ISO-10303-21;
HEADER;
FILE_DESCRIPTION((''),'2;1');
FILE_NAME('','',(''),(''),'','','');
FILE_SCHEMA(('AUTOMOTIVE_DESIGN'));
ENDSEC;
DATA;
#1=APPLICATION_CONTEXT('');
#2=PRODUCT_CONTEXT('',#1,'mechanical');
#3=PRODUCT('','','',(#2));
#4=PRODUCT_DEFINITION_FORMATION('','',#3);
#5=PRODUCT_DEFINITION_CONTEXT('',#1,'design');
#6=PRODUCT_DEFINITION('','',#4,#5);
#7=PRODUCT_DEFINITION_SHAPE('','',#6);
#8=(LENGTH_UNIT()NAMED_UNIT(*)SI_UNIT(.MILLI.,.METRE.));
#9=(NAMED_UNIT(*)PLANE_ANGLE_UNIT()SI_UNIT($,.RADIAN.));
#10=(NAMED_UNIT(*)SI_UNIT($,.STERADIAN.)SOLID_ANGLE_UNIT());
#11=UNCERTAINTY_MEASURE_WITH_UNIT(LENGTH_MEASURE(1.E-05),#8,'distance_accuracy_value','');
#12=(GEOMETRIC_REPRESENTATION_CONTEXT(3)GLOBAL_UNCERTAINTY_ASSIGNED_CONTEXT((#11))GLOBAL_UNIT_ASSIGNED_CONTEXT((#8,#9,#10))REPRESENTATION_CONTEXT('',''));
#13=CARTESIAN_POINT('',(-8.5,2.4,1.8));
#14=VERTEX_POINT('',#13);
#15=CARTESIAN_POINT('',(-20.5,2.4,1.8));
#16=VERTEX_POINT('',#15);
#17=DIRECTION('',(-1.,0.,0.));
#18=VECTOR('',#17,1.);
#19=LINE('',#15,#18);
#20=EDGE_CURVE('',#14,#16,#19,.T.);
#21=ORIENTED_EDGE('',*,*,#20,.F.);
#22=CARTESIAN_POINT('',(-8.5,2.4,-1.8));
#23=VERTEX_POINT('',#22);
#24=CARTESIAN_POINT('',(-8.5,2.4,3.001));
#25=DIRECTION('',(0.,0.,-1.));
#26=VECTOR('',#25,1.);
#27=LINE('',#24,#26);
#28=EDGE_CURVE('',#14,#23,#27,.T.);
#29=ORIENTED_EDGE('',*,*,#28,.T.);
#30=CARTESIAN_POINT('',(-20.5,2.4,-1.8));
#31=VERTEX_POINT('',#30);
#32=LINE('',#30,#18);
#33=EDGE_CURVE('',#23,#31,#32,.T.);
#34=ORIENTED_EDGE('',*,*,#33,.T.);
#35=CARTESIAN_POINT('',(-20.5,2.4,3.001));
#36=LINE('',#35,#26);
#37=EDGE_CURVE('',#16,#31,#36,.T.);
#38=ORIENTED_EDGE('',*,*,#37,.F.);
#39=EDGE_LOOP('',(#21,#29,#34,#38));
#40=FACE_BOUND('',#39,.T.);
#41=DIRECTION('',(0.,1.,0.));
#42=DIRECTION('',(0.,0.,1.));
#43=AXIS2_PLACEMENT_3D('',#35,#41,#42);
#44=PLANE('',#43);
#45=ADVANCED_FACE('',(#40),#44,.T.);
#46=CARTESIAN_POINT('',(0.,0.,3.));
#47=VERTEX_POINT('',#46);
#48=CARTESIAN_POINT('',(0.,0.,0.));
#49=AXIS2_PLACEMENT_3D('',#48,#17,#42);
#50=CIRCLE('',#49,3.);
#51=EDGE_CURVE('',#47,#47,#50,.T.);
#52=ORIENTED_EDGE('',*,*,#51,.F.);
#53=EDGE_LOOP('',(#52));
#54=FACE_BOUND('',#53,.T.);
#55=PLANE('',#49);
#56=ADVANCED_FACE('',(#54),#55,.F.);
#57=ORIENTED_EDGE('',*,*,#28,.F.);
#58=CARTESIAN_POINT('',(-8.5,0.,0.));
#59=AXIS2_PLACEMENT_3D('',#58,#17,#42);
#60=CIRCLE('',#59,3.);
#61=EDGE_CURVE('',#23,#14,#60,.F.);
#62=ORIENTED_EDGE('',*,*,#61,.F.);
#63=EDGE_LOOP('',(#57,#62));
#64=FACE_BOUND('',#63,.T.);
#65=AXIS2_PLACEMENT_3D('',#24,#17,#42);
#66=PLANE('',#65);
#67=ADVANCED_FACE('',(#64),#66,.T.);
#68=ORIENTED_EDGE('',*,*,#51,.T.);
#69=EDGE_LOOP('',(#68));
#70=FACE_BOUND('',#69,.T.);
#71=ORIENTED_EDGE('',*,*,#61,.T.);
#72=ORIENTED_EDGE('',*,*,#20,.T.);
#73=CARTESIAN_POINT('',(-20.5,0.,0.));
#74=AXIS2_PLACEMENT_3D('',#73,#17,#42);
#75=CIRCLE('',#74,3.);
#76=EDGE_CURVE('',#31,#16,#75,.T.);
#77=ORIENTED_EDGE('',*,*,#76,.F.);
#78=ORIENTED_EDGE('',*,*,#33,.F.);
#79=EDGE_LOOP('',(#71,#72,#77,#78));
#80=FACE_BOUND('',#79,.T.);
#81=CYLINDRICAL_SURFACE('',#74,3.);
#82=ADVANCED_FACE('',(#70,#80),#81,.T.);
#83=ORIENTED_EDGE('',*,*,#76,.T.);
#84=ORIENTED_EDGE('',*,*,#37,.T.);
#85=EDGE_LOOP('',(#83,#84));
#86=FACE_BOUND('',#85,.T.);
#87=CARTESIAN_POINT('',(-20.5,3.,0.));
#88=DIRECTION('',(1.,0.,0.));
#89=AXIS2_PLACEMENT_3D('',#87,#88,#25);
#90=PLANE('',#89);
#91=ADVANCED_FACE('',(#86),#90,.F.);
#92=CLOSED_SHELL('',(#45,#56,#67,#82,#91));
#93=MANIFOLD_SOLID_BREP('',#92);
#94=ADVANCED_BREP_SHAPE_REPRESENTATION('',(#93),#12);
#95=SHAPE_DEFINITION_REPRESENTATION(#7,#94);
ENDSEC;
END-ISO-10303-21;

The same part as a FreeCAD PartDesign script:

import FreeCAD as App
import Part
import Sketcher

doc = App.newDocument("Part")
body = doc.addObject("PartDesign::Body", "Body")

# Sketch on XY plane
sketch1 = body.newObject("Sketcher::SketchObject", "Sketch")
sketch1.AttachmentSupport = (doc.getObject("XY_Plane"), [""])
sketch1.MapMode = "FlatFace"
sketch1.addGeometry([
    Part.LineSegment(App.Vector(-20.5, 3, 0), App.Vector(-20.5, 0, 0)),
    Part.LineSegment(App.Vector(-20.5, 0, 0), App.Vector(0, 0, 0)),
    Part.LineSegment(App.Vector(0, 0, 0), App.Vector(0, 3, 0)),
    Part.LineSegment(App.Vector(0, 3, 0), App.Vector(-20.5, 3, 0)),
], False)
sketch1.addConstraint([
    Sketcher.Constraint("Coincident", 0, 2, 1, 1),
    Sketcher.Constraint("Coincident", 1, 2, 2, 1),
    Sketcher.Constraint("Coincident", 2, 2, 3, 1),
    Sketcher.Constraint("Coincident", 3, 2, 0, 1),
    Sketcher.Constraint("Vertical", 0),
    Sketcher.Constraint("Horizontal", 1),
    Sketcher.Constraint("Vertical", 2),
    Sketcher.Constraint("Horizontal", 3),
    Sketcher.Constraint("Coincident", 1, 2, -1, 1),
    Sketcher.Constraint("DistanceY", 0, 2, 0, 1, 3.0),
    Sketcher.Constraint("DistanceX", 1, 1, 1, 2, 20.5),
])
revolution = body.newObject("PartDesign::Revolution", "Revolution")
revolution.Profile = sketch1
revolution.ReferenceAxis = (sketch1, ["H_Axis"])
revolution.Angle = 360

# Sketch on XY plane
sketch2 = body.newObject("Sketcher::SketchObject", "Sketch001")
sketch2.AttachmentSupport = (doc.getObject("XY_Plane"), [""])
sketch2.MapMode = "FlatFace"
sketch2.addGeometry([
    Part.LineSegment(App.Vector(-20.5, 4.4, 0), App.Vector(-20.5, 2.4, 0)),
    Part.LineSegment(App.Vector(-20.5, 2.4, 0), App.Vector(-8.5, 2.4, 0)),
    Part.LineSegment(App.Vector(-8.5, 2.4, 0), App.Vector(-8.5, 4.4, 0)),
    Part.LineSegment(App.Vector(-8.5, 4.4, 0), App.Vector(-20.5, 4.4, 0)),
], False)
sketch2.addConstraint([
    Sketcher.Constraint("Coincident", 0, 2, 1, 1),
    Sketcher.Constraint("Coincident", 1, 2, 2, 1),
    Sketcher.Constraint("Coincident", 2, 2, 3, 1),
    Sketcher.Constraint("Coincident", 3, 2, 0, 1),
    Sketcher.Constraint("Vertical", 0),
    Sketcher.Constraint("Horizontal", 1),
    Sketcher.Constraint("Vertical", 2),
    Sketcher.Constraint("Horizontal", 3),
    Sketcher.Constraint("DistanceX", 1, 1, 1, 2, 12.0),
    Sketcher.Constraint("DistanceY", 0, 2, 0, 1, 2.0),
    Sketcher.Constraint("DistanceX", 0, 2, -1, 1, 20.5),
    Sketcher.Constraint("DistanceY", -1, 1, 0, 2, 2.4),
])
pocket1 = body.newObject("PartDesign::Pocket", "Pocket")
pocket1.Profile = sketch2
pocket1.Length = 1.8

# Sketch on XY plane
sketch3 = body.newObject("Sketcher::SketchObject", "Sketch002")
sketch3.AttachmentSupport = (doc.getObject("XY_Plane"), [""])
sketch3.MapMode = "FlatFace"
sketch3.addGeometry([
    Part.LineSegment(App.Vector(-20.5, 4.4, 0), App.Vector(-20.5, 2.4, 0)),
    Part.LineSegment(App.Vector(-20.5, 2.4, 0), App.Vector(-8.5, 2.4, 0)),
    Part.LineSegment(App.Vector(-8.5, 2.4, 0), App.Vector(-8.5, 4.4, 0)),
    Part.LineSegment(App.Vector(-8.5, 4.4, 0), App.Vector(-20.5, 4.4, 0)),
], False)
sketch3.addConstraint([
    Sketcher.Constraint("Coincident", 0, 2, 1, 1),
    Sketcher.Constraint("Coincident", 1, 2, 2, 1),
    Sketcher.Constraint("Coincident", 2, 2, 3, 1),
    Sketcher.Constraint("Coincident", 3, 2, 0, 1),
    Sketcher.Constraint("Vertical", 0),
    Sketcher.Constraint("Horizontal", 1),
    Sketcher.Constraint("Vertical", 2),
    Sketcher.Constraint("Horizontal", 3),
    Sketcher.Constraint("DistanceX", 1, 1, 1, 2, 12.0),
    Sketcher.Constraint("DistanceY", 0, 2, 0, 1, 2.0),
    Sketcher.Constraint("DistanceX", 0, 2, -1, 1, 20.5),
    Sketcher.Constraint("DistanceY", -1, 1, 0, 2, 2.4),
])
pocket2 = body.newObject("PartDesign::Pocket", "Pocket001")
pocket2.Profile = sketch3
pocket2.Length = 1.8
pocket2.Reversed = True

doc.recompute()
